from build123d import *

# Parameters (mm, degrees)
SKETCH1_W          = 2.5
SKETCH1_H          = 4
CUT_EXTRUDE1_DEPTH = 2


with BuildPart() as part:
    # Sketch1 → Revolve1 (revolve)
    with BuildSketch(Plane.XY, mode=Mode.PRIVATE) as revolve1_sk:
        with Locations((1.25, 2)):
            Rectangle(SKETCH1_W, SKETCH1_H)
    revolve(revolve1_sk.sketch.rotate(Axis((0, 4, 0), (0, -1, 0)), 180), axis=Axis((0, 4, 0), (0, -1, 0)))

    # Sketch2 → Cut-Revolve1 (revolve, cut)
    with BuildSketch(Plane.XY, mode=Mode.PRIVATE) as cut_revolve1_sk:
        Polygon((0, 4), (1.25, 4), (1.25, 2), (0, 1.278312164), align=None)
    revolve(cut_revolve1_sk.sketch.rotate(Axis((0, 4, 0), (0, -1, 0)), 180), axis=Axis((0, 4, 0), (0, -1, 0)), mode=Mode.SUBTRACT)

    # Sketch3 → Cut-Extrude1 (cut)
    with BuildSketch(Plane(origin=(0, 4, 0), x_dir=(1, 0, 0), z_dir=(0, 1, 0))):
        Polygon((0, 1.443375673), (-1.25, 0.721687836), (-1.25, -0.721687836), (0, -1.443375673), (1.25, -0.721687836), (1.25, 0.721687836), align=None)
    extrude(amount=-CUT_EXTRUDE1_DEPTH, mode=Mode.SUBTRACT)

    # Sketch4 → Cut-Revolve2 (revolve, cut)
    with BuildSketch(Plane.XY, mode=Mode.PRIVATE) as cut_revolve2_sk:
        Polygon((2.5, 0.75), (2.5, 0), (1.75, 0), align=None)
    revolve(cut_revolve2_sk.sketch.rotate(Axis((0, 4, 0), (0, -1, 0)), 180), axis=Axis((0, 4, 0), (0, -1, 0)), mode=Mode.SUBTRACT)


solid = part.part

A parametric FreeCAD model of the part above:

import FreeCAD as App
import Part
import Sketcher
from FreeCAD import Vector
Q = App.Units.Quantity

doc = App.newDocument("Part")
body = doc.addObject("PartDesign::Body", "Body")

# Sketch on XY plane
sketch1 = body.newObject("Sketcher::SketchObject", "Sketch")
sketch1.AttachmentSupport = (doc.getObject("XY_Plane"), [""])
sketch1.MapMode = "FlatFace"
sketch1.addGeometry([
    Part.LineSegment(Vector(0, 4, 0), Vector(0, 0, 0)),
    Part.LineSegment(Vector(0, 0, 0), Vector(2.5, 0, 0)),
    Part.LineSegment(Vector(2.5, 0, 0), Vector(2.5, 4, 0)),
    Part.LineSegment(Vector(2.5, 4, 0), Vector(0, 4, 0)),
], False)
sketch1.addConstraint([
    Sketcher.Constraint("Coincident", 0, 2, 1, 1),
    Sketcher.Constraint("Coincident", 1, 2, 2, 1),
    Sketcher.Constraint("Coincident", 2, 2, 3, 1),
    Sketcher.Constraint("Coincident", 3, 2, 0, 1),
    Sketcher.Constraint("Vertical", 0),
    Sketcher.Constraint("Horizontal", 1),
    Sketcher.Constraint("Vertical", 2),
    Sketcher.Constraint("Horizontal", 3),
    Sketcher.Constraint("Coincident", 0, 2, -1, 1),
    Sketcher.Constraint("DistanceY", 0, 2, 0, 1, Q("4 mm")),
    Sketcher.Constraint("DistanceX", 1, 1, 1, 2, Q("2.5 mm")),
])
revolution = body.newObject("PartDesign::Revolution", "Revolution")
revolution.Profile = sketch1
revolution.ReferenceAxis = (sketch1, ["V_Axis"])
revolution.Angle = 360

# Sketch on XY plane
sketch2 = body.newObject("Sketcher::SketchObject", "Sketch001")
sketch2.AttachmentSupport = (doc.getObject("XY_Plane"), [""])
sketch2.MapMode = "FlatFace"
sketch2.addGeometry([
    Part.LineSegment(Vector(1.2, 4, 0), Vector(0, 4, 0)),
    Part.LineSegment(Vector(0, 4, 0), Vector(0, 1.3, 0)),
    Part.LineSegment(Vector(0, 1.3, 0), Vector(1.2, 2, 0)),
    Part.LineSegment(Vector(1.2, 2, 0), Vector(1.2, 4, 0)),
], False)
sketch2.addConstraint([
    Sketcher.Constraint("Coincident", 0, 2, 1, 1),
    Sketcher.Constraint("Coincident", 1, 2, 2, 1),
    Sketcher.Constraint("Coincident", 2, 2, 3, 1),
    Sketcher.Constraint("Coincident", 3, 2, 0, 1),
    Sketcher.Constraint("Horizontal", 0),
    Sketcher.Constraint("Vertical", 1),
    Sketcher.Constraint("Vertical", 3),
    Sketcher.Constraint("PointOnObject", 0, 2, -2),
    Sketcher.Constraint("DistanceY", 3, 1, 3, 2, Q("2 mm")),
    Sketcher.Constraint("Angle", 2, Q("30 deg")),
    Sketcher.Constraint("DistanceY", -1, 1, 0, 2, Q("4 mm")),
    Sketcher.Constraint("DistanceX", 0, 2, 0, 1, Q("1.25 mm")),
])
groove = body.newObject("PartDesign::Groove", "Groove")
groove.Profile = sketch2
groove.ReferenceAxis = (sketch2, ["V_Axis"])
groove.Angle = 360

# Sketch on XZ plane
sketch3 = body.newObject("Sketcher::SketchObject", "Sketch002")
sketch3.AttachmentSupport = (doc.getObject("XZ_Plane"), [""])
sketch3.MapMode = "FlatFace"
sketch3.AttachmentOffset = App.Placement(Vector(0, 0, -4), App.Rotation())
sketch3.addGeometry([
    Part.LineSegment(Vector(0, -1.4, 0), Vector(-1.2, -0.7, 0)),  # 0
    Part.LineSegment(Vector(-1.2, -0.7, 0), Vector(-1.2, 0.7, 0)),  # 1
    Part.LineSegment(Vector(-1.2, 0.7, 0), Vector(0, 1.4, 0)),  # 2
    Part.LineSegment(Vector(0, 1.4, 0), Vector(1.2, 0.7, 0)),  # 3
    Part.LineSegment(Vector(1.2, 0.7, 0), Vector(1.2, -0.7, 0)),  # 4
    Part.LineSegment(Vector(1.2, -0.7, 0), Vector(0, -1.4, 0)),  # 5
], False)
sketch3.addConstraint([
    Sketcher.Constraint("Coincident", 0, 2, 1, 1),
    Sketcher.Constraint("Coincident", 1, 2, 2, 1),
    Sketcher.Constraint("Coincident", 2, 2, 3, 1),
    Sketcher.Constraint("Coincident", 3, 2, 4, 1),
    Sketcher.Constraint("Coincident", 4, 2, 5, 1),
    Sketcher.Constraint("Coincident", 5, 2, 0, 1),
    Sketcher.Constraint("Vertical", 1),
    Sketcher.Constraint("Vertical", 4),
    Sketcher.Constraint("Symmetric", 0, 2, 3, 2, -1, 1),
    Sketcher.Constraint("Symmetric", 2, 2, 5, 2, -1, 1),
    Sketcher.Constraint("PointOnObject", 2, 2, -2),
    Sketcher.Constraint("Parallel", 2, 5),
    Sketcher.Constraint("Horizontal", 1, 2, 3, 2),
    Sketcher.Constraint("Angle", 0, Q("150 deg")),
    Sketcher.Constraint("DistanceX", 1, 2, 3, 2, Q("2.5 mm")),
    Sketcher.Constraint("DistanceY", 1, 1, 1, 2, Q("1.443376 mm")),
])
pocket1 = body.newObject("PartDesign::Pocket", "Pocket")
pocket1.Profile = sketch3
pocket1.Length = 2
pocket1.Reversed = True

# Sketch on XY plane
sketch4 = body.newObject("Sketcher::SketchObject", "Sketch003")
sketch4.AttachmentSupport = (doc.getObject("XY_Plane"), [""])
sketch4.MapMode = "FlatFace"
sketch4.addGeometry([
    Part.LineSegment(Vector(2.5, 0, 0), Vector(2.5, 0.8, 0)),
    Part.LineSegment(Vector(2.5, 0.8, 0), Vector(1.8, 0, 0)),
    Part.LineSegment(Vector(1.8, 0, 0), Vector(2.5, 0, 0)),
], False)
sketch4.addConstraint([
    Sketcher.Constraint("Coincident", 0, 2, 1, 1),
    Sketcher.Constraint("Coincident", 1, 2, 2, 1),
    Sketcher.Constraint("Coincident", 2, 2, 0, 1),
    Sketcher.Constraint("Vertical", 0),
    Sketcher.Constraint("Horizontal", 2),
    Sketcher.Constraint("PointOnObject", 1, 2, -1),
    Sketcher.Constraint("Equal", 2, 0),
    Sketcher.Constraint("DistanceX", 2, 1, 2, 2, Q("0.75 mm")),
    Sketcher.Constraint("DistanceX", -1, 1, 0, 2, Q("2.5 mm")),
])
groove2 = body.newObject("PartDesign::Groove", "Groove001")
groove2.Profile = sketch4
groove2.ReferenceAxis = (sketch4, ["V_Axis"])
groove2.Angle = 360

doc.recompute()
